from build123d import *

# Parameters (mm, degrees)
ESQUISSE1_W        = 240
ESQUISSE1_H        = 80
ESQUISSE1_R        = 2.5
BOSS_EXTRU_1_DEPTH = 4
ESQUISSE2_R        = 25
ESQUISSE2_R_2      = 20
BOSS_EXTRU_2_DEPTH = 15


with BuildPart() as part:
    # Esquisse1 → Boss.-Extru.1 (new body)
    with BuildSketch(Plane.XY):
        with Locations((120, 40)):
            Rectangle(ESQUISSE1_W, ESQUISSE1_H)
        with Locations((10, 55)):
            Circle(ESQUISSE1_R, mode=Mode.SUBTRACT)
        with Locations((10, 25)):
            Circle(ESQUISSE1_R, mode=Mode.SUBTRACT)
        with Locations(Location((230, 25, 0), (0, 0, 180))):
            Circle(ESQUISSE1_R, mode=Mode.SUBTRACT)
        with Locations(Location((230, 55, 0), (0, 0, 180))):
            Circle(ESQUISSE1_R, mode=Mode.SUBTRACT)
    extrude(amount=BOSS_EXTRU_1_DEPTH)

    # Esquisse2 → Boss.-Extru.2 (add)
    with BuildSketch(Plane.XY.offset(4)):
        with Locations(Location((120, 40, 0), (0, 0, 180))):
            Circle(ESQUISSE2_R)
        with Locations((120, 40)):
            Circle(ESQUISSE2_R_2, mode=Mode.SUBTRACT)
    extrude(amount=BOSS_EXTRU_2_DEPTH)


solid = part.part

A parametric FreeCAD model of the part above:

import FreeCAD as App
import Part
import Sketcher

V = App.Vector
Q = App.Units.Quantity

doc = App.newDocument("Part")
params = doc.addObject("Spreadsheet::Sheet", "Params")
for row, (alias, value) in enumerate([
    ("sketch1_diameter", "5 mm"),
    ("sketch1_width", "240 mm"),
    ("sketch1_height", "80 mm"),
    ("pad1_length", "4 mm"),
    ("sketch2_diameter", "50 mm"),
    ("sketch2_diameter2", "40 mm"),
    ("pad2_length", "15 mm"),
], start=1):
    params.set(f"A{row}", alias)
    params.set(f"B{row}", "=" + value)
    params.setAlias(f"B{row}", alias)

body = doc.addObject("PartDesign::Body", "Body")

sketch1 = doc.addObject("Sketcher::SketchObject", "Sketch")
body.addObject(sketch1)
sketch1.AttachmentSupport = (doc.XY_Plane, [""])
sketch1.MapMode = "FlatFace"
sketch1.addGeometry([
    Part.LineSegment(V(0, 80, 0), V(0, 0, 0)),
    Part.LineSegment(V(0, 0, 0), V(240, 0, 0)),
    Part.LineSegment(V(240, 0, 0), V(240, 80, 0)),
    Part.LineSegment(V(240, 80, 0), V(0, 80, 0)),
    Part.Circle(V(10, 25, 0), V(0, 0, 1), 2.5),
    Part.Circle(V(230, 25, 0), V(0, 0, 1), 2.5),
    Part.Circle(V(10, 55, 0), V(0, 0, 1), 2.5),
    Part.Circle(V(230, 55, 0), V(0, 0, 1), 2.5),
], False)
sketch1.addConstraint([
    Sketcher.Constraint("Coincident", 0, 2, 1, 1),
    Sketcher.Constraint("Coincident", 1, 2, 2, 1),
    Sketcher.Constraint("Coincident", 2, 2, 3, 1),
    Sketcher.Constraint("Coincident", 3, 2, 0, 1),
    Sketcher.Constraint("Vertical", 0),
    Sketcher.Constraint("Horizontal", 1),
    Sketcher.Constraint("Vertical", 2),
    Sketcher.Constraint("Horizontal", 3),
    Sketcher.Constraint("Coincident", 0, 2, -1, 1),
    Sketcher.Constraint("Equal", 4, 5),
    Sketcher.Constraint("Equal", 5, 6),
    Sketcher.Constraint("Equal", 6, 7),
    Sketcher.Constraint("Horizontal", 4, 3, 5, 3),
    Sketcher.Constraint("Horizontal", 6, 3, 7, 3),
    Sketcher.Constraint("Vertical", 4, 3, 6, 3),
    Sketcher.Constraint("Vertical", 5, 3, 7, 3),
    Sketcher.Constraint("Diameter", 4, Q("5 mm")),
    Sketcher.Constraint("DistanceX", 1, 1, 1, 2, Q("240 mm")),
    Sketcher.Constraint("DistanceY", 0, 2, 0, 1, Q("80 mm")),
    Sketcher.Constraint("DistanceX", -1, 1, 4, 3, Q("10 mm")),
    Sketcher.Constraint("DistanceY", -1, 1, 4, 3, Q("25 mm")),
    Sketcher.Constraint("DistanceX", -1, 1, 5, 3, Q("230 mm")),
    Sketcher.Constraint("DistanceY", -1, 1, 6, 3, Q("55 mm")),
])
sketch1.setExpression("Constraints[16]", "Params.sketch1_diameter")
sketch1.setExpression("Constraints[17]", "Params.sketch1_width")
sketch1.setExpression("Constraints[18]", "Params.sketch1_height")
pad1 = doc.addObject("PartDesign::Pad", "Pad")
body.addObject(pad1)
pad1.Profile = sketch1
pad1.setExpression("Length", "Params.pad1_length")

sketch2 = doc.addObject("Sketcher::SketchObject", "Sketch001")
body.addObject(sketch2)
sketch2.AttachmentSupport = (doc.XY_Plane, [""])
sketch2.MapMode = "FlatFace"
sketch2.AttachmentOffset = App.Placement(V(0, 0, 4), App.Rotation())
sketch2.addGeometry([
    Part.Circle(V(120, 40, 0), V(0, 0, 1), 25),
    Part.Circle(V(120, 40, 0), V(0, 0, 1), 20),
], False)
sketch2.addConstraint([
    Sketcher.Constraint("Coincident", 1, 3, 0, 3),
    Sketcher.Constraint("Diameter", 0, Q("50 mm")),
    Sketcher.Constraint("Diameter", 1, Q("40 mm")),
    Sketcher.Constraint("DistanceX", -1, 1, 0, 3, Q("120 mm")),
    Sketcher.Constraint("DistanceY", -1, 1, 0, 3, Q("40 mm")),
])
sketch2.setExpression("Constraints[1]", "Params.sketch2_diameter")
sketch2.setExpression("Constraints[2]", "Params.sketch2_diameter2")
pad2 = doc.addObject("PartDesign::Pad", "Pad001")
body.addObject(pad2)
pad2.Profile = sketch2
pad2.setExpression("Length", "Params.pad2_length")

doc.recompute()
